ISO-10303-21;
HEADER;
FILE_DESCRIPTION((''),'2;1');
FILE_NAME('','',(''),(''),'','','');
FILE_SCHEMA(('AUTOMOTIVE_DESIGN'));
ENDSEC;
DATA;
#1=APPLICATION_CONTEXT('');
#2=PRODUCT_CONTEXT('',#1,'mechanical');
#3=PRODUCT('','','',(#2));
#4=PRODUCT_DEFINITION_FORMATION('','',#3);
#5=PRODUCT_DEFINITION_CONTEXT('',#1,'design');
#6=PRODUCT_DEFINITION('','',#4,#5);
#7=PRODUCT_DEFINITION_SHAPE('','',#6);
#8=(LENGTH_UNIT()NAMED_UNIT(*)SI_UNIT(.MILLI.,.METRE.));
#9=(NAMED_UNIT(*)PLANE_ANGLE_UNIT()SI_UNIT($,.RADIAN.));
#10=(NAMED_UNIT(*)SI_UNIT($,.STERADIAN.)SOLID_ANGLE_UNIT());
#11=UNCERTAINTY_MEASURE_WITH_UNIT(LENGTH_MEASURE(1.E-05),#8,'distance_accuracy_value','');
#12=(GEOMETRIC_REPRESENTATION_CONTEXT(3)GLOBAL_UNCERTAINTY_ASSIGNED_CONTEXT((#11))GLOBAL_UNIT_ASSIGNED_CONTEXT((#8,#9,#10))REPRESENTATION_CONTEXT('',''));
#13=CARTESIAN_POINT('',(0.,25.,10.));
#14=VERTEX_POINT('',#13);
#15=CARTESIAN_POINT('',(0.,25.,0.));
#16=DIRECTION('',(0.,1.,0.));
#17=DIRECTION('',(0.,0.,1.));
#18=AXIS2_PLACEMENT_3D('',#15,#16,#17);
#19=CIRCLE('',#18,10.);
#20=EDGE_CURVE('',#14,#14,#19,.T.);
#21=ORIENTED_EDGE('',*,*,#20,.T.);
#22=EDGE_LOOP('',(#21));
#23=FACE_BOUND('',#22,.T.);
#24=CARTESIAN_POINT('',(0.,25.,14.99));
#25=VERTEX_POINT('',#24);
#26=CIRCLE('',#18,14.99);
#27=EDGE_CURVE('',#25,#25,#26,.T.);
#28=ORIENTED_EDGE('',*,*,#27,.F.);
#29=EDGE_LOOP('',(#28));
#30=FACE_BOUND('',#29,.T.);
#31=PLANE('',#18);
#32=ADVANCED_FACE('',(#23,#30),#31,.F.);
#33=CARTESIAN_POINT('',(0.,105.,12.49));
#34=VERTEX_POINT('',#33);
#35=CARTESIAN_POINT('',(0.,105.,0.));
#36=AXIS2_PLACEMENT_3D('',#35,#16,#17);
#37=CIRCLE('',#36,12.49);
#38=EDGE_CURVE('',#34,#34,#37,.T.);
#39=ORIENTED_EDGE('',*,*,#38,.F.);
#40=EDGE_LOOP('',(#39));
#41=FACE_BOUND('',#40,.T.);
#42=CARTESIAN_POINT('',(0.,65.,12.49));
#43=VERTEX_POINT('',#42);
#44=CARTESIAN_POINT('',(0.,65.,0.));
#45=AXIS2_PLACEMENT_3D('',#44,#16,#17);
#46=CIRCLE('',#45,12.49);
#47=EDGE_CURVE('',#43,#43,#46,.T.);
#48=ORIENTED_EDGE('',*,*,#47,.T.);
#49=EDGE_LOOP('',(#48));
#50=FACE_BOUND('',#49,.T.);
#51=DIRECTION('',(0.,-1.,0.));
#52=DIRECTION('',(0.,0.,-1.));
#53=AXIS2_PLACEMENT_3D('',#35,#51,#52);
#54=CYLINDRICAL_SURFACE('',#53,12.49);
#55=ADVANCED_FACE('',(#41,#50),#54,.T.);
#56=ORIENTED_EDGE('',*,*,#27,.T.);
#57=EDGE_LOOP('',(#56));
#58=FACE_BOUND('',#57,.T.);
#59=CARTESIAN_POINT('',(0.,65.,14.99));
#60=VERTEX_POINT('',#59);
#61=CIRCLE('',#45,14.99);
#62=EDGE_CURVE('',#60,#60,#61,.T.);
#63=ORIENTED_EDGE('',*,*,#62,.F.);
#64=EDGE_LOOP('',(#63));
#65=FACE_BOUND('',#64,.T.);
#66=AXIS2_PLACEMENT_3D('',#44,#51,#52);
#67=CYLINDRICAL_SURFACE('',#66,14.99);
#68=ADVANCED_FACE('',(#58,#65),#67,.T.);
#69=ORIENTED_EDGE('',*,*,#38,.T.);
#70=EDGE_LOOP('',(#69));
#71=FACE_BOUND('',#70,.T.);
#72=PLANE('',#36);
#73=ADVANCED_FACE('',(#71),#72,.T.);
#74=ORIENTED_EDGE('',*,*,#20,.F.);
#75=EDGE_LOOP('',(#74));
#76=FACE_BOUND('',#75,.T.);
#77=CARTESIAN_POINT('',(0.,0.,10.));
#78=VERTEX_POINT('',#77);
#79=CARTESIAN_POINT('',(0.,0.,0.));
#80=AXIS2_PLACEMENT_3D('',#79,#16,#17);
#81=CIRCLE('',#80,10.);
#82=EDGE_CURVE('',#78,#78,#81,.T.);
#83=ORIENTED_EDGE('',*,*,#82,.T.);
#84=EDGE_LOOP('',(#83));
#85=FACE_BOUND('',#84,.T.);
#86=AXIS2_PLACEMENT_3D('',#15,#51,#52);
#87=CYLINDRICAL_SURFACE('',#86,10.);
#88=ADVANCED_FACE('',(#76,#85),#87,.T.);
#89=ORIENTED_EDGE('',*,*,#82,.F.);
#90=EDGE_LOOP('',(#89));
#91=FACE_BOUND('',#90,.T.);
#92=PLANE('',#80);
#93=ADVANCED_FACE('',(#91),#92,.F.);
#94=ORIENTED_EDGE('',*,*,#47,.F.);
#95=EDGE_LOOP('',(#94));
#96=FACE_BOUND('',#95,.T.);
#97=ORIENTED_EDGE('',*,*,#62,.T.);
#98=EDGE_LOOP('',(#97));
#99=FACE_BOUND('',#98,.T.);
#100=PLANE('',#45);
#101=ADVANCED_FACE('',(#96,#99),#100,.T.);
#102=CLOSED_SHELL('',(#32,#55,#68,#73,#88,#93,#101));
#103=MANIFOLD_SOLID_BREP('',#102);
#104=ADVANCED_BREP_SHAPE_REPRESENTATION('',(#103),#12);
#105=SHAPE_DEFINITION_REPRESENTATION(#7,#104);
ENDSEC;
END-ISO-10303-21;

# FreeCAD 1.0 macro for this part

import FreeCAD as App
import Part
import Sketcher

V = App.Vector

doc = App.newDocument("Part")
body = doc.addObject("PartDesign::Body", "Body")

# Sketch on XZ plane
sketch1 = body.newObject("Sketcher::SketchObject", "Sketch")
sketch1.AttachmentSupport = (doc.getObject("XZ_Plane"), [""])
sketch1.MapMode = "FlatFace"
sketch1.addGeometry(Part.Circle(V(0, 0, 0), V(0, 0, 1), 10), False)
sketch1.addConstraint(Sketcher.Constraint("Coincident", 0, 3, -1, 1))
sketch1.addConstraint(Sketcher.Constraint("Diameter", 0, 20.0))
pad1 = body.newObject("PartDesign::Pad", "Pad")
pad1.Profile = sketch1
pad1.Length = 25
pad1.Reversed = True

# Sketch on XZ plane
sketch2 = body.newObject("Sketcher::SketchObject", "Sketch001")
sketch2.AttachmentSupport = (doc.getObject("XZ_Plane"), [""])
sketch2.MapMode = "FlatFace"
sketch2.AttachmentOffset = App.Placement(V(0, 0, -25), App.Rotation())
sketch2.addGeometry(Part.Circle(V(0, 0, 0), V(0, 0, 1), 15), False)
sketch2.addConstraint(Sketcher.Constraint("Coincident", 0, 3, -1, 1))
sketch2.addConstraint(Sketcher.Constraint("Diameter", 0, 29.98))
pad2 = body.newObject("PartDesign::Pad", "Pad001")
pad2.Profile = sketch2
pad2.Length = 40
pad2.Reversed = True

# Sketch on XZ plane
sketch3 = body.newObject("Sketcher::SketchObject", "Sketch002")
sketch3.AttachmentSupport = (doc.getObject("XZ_Plane"), [""])
sketch3.MapMode = "FlatFace"
sketch3.AttachmentOffset = App.Placement(V(0, 0, -65), App.Rotation())
sketch3.addGeometry(Part.Circle(V(0, 0, 0), V(0, 0, 1), 12), False)
sketch3.addConstraint(Sketcher.Constraint("Coincident", 0, 3, -1, 1))
sketch3.addConstraint(Sketcher.Constraint("Diameter", 0, 24.98))
pad3 = body.newObject("PartDesign::Pad", "Pad002")
pad3.Profile = sketch3
pad3.Length = 40
pad3.Reversed = True

doc.recompute()
